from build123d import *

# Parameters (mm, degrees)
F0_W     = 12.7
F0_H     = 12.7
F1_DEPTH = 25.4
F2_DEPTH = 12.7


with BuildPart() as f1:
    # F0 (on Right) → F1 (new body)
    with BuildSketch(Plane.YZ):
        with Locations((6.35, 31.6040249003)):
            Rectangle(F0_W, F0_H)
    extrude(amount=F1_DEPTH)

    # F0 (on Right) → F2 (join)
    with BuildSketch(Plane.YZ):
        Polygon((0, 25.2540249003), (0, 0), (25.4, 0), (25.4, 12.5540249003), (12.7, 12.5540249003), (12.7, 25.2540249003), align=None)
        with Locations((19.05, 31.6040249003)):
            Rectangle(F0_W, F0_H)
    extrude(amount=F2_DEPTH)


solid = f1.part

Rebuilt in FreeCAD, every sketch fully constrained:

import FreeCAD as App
import Part
import Sketcher
from FreeCAD import Vector
Q = App.Units.Quantity


def add_polygon(sketch, points):
    """Adds a closed chain of lines whose ends are joined by coincident constraints."""
    first, n = sketch.GeometryCount, len(points)
    for a, b in zip(points, points[1:] + points[:1]):
        sketch.addGeometry(Part.LineSegment(App.Vector(*a, 0), App.Vector(*b, 0)), False)
    for i in range(n):
        sketch.addConstraint(Sketcher.Constraint("Coincident", first + i, 2, first + (i + 1) % n, 1))

doc = App.newDocument("Part")
params = doc.addObject("Spreadsheet::Sheet", "Params")
for row, (alias, value) in enumerate([
    ("sketch1_width", "0.5 in"),
    ("pad1_length", "1 in"),
    ("sketch2_width", "1 in"),
    ("pad2_length", "0.5 in"),
], start=1):
    params.set(f"A{row}", alias)
    params.set(f"B{row}", "=" + value)
    params.setAlias(f"B{row}", alias)

body = doc.addObject("PartDesign::Body", "Body")

# Sketch on YZ plane
sketch1 = body.newObject("Sketcher::SketchObject", "Sketch")
sketch1.AttachmentSupport = (doc.getObject("YZ_Plane"), [""])
sketch1.MapMode = "FlatFace"
add_polygon(sketch1, [(0, 37.954025), (0, 25.254025), (12.7, 25.254025), (12.7, 37.954025)])  # lines 0-3
sketch1.addConstraint([
    Sketcher.Constraint("Vertical", 0),
    Sketcher.Constraint("Horizontal", 1),
    Sketcher.Constraint("Vertical", 2),
    Sketcher.Constraint("Horizontal", 3),
    Sketcher.Constraint("PointOnObject", 0, 2, -2),
    Sketcher.Constraint("Equal", 3, 0),
    Sketcher.Constraint("DistanceX", 1, 1, 1, 2, Q("0.5 in")),
    Sketcher.Constraint("DistanceY", -1, 1, 0, 2, Q("25.254025 mm")),
])
sketch1.setExpression("Constraints[10]", "Params.sketch1_width")
pad1 = body.newObject("PartDesign::Pad", "Pad")
pad1.Profile = sketch1
pad1.setExpression("Length", "Params.pad1_length")

# Sketch on YZ plane
sketch2 = body.newObject("Sketcher::SketchObject", "Sketch001")
sketch2.AttachmentSupport = (doc.getObject("YZ_Plane"), [""])
sketch2.MapMode = "FlatFace"
add_polygon(sketch2, [(0, 25.254025), (0, 0), (25.4, 0), (25.4, 12.554025), (12.7, 12.554025), (12.7, 25.254025)])  # lines 0-5
add_polygon(sketch2, [(12.7, 37.954025), (12.7, 25.254025), (25.4, 25.254025), (25.4, 37.954025)])  # lines 6-9
sketch2.addConstraint([
    Sketcher.Constraint("Vertical", 0),
    Sketcher.Constraint("Horizontal", 1),
    Sketcher.Constraint("Vertical", 2),
    Sketcher.Constraint("Horizontal", 3),
    Sketcher.Constraint("Vertical", 4),
    Sketcher.Constraint("Horizontal", 5),
    Sketcher.Constraint("Vertical", 6),
    Sketcher.Constraint("Horizontal", 7),
    Sketcher.Constraint("Vertical", 8),
    Sketcher.Constraint("Horizontal", 9),
    Sketcher.Constraint("Coincident", 0, 2, -1, 1),
    Sketcher.Constraint("Coincident", 6, 2, 4, 2),
    Sketcher.Constraint("Vertical", 2, 2, 7, 2),
    Sketcher.Constraint("Equal", 3, 5),
    Sketcher.Constraint("Equal", 9, 4),
    Sketcher.Constraint("Equal", 4, 6),
    Sketcher.Constraint("DistanceX", 1, 1, 1, 2, Q("1 in")),
    Sketcher.Constraint("DistanceY", 0, 2, 0, 1, Q("25.254025 mm")),
])
sketch2.setExpression("Constraints[26]", "Params.sketch2_width")
pad2 = body.newObject("PartDesign::Pad", "Pad001")
pad2.Profile = sketch2
pad2.setExpression("Length", "Params.pad2_length")

doc.recompute()
